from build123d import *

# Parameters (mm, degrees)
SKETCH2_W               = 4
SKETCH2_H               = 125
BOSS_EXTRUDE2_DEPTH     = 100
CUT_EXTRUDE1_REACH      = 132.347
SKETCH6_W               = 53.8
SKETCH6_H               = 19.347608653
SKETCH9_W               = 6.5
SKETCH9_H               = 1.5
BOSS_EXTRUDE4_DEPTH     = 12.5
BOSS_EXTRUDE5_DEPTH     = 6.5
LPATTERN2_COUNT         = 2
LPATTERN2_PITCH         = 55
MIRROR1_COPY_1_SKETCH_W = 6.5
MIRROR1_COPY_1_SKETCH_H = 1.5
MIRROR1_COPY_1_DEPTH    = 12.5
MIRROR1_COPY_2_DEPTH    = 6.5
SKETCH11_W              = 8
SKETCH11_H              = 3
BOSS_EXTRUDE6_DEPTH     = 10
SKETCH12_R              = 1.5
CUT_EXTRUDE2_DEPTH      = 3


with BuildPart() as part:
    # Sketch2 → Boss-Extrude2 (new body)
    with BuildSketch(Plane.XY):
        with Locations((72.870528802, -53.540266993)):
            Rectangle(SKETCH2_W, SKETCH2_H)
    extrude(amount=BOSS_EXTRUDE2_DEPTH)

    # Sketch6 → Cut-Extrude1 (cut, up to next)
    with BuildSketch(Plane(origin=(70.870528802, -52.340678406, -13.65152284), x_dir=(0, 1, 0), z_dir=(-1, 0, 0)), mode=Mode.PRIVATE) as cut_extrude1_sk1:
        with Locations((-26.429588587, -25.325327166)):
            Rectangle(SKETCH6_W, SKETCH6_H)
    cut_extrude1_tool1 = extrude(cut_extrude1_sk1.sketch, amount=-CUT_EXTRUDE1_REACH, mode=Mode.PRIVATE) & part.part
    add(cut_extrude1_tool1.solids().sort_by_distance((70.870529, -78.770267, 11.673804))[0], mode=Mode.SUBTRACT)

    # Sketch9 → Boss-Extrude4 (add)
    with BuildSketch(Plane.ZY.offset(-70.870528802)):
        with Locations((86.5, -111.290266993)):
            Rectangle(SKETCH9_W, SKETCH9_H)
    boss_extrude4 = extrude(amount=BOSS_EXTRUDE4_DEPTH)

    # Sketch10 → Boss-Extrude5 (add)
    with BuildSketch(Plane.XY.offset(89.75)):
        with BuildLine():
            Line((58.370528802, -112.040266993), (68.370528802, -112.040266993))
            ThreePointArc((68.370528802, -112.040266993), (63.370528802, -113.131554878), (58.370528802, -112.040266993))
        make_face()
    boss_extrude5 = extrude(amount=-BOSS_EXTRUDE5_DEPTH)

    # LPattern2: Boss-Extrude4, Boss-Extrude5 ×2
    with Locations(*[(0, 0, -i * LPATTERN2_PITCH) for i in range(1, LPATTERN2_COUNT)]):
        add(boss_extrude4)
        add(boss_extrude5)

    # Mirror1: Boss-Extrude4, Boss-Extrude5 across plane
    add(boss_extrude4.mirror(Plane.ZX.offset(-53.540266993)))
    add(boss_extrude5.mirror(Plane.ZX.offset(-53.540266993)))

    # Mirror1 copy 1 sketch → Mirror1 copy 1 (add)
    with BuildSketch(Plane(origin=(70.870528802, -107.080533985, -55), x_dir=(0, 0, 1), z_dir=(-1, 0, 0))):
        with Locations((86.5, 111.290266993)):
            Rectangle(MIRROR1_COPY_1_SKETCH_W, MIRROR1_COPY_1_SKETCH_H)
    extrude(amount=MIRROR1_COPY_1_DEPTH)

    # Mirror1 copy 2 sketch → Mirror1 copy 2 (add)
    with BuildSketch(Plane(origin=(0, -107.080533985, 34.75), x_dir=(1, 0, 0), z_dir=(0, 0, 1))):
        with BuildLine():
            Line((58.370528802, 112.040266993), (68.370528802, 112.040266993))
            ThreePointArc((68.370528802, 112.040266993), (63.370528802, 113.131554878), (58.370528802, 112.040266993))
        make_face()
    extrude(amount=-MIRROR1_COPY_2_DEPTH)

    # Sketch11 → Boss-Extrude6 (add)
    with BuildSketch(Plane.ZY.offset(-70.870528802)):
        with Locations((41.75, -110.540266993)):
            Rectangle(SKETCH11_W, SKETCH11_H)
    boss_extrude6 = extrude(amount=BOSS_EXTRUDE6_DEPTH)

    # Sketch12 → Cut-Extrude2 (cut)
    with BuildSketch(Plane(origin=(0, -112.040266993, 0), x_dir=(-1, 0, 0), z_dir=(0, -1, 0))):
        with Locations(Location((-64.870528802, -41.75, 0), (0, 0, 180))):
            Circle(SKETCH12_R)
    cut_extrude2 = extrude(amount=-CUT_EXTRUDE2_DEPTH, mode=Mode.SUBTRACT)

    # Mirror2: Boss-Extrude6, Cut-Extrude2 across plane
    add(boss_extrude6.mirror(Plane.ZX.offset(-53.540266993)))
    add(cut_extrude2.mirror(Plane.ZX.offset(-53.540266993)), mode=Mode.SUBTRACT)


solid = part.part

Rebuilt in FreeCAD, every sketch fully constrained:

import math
import FreeCAD as App
import Part
import Sketcher
from FreeCAD import Vector

doc = App.newDocument("Part")
body = doc.addObject("PartDesign::Body", "Body")

sketch1 = body.newObject("Sketcher::SketchObject", "Sketch")
sketch1.AttachmentSupport = (doc.getObject("XY_Plane"), [""])
sketch1.MapMode = "FlatFace"
sketch1.addGeometry([
    Part.LineSegment(Vector(70.9, 9, 0), Vector(70.9, -116, 0)),
    Part.LineSegment(Vector(70.9, -116, 0), Vector(74.9, -116, 0)),
    Part.LineSegment(Vector(74.9, -116, 0), Vector(74.9, 9, 0)),
    Part.LineSegment(Vector(74.9, 9, 0), Vector(70.9, 9, 0)),
], False)
sketch1.addConstraint([
    Sketcher.Constraint("Coincident", 0, 2, 1, 1),
    Sketcher.Constraint("Coincident", 1, 2, 2, 1),
    Sketcher.Constraint("Coincident", 2, 2, 3, 1),
    Sketcher.Constraint("Coincident", 3, 2, 0, 1),
    Sketcher.Constraint("Vertical", 0),
    Sketcher.Constraint("Horizontal", 1),
    Sketcher.Constraint("Vertical", 2),
    Sketcher.Constraint("Horizontal", 3),
    Sketcher.Constraint("DistanceX", 1, 1, 1, 2, 4.0),
    Sketcher.Constraint("DistanceY", 0, 2, 0, 1, 125.0),
    Sketcher.Constraint("DistanceX", -1, 1, 0, 2, 70.870529),
    Sketcher.Constraint("DistanceY", 0, 2, -1, 1, 116.040267),
])
pad1 = body.newObject("PartDesign::Pad", "Pad")
pad1.Profile = sketch1
pad1.Length = 100

sketch2 = body.newObject("Sketcher::SketchObject", "Sketch001")
sketch2.AttachmentSupport = (doc.getObject("YZ_Plane"), [""])
sketch2.MapMode = "FlatFace"
sketch2.AttachmentOffset = App.Placement(Vector(0, 0, 70.870529), App.Rotation())
sketch2.addGeometry([
    Part.LineSegment(Vector(-106, 2, 0), Vector(-106, 21, 0)),
    Part.LineSegment(Vector(-106, 21, 0), Vector(-52, 21, 0)),
    Part.LineSegment(Vector(-52, 21, 0), Vector(-52, 2, 0)),
    Part.LineSegment(Vector(-52, 2, 0), Vector(-106, 2, 0)),
], False)
sketch2.addConstraint([
    Sketcher.Constraint("Coincident", 0, 2, 1, 1),
    Sketcher.Constraint("Coincident", 1, 2, 2, 1),
    Sketcher.Constraint("Coincident", 2, 2, 3, 1),
    Sketcher.Constraint("Coincident", 3, 2, 0, 1),
    Sketcher.Constraint("Vertical", 0),
    Sketcher.Constraint("Horizontal", 1),
    Sketcher.Constraint("Vertical", 2),
    Sketcher.Constraint("Horizontal", 3),
    Sketcher.Constraint("DistanceX", 1, 1, 1, 2, 53.8),
    Sketcher.Constraint("DistanceY", -1, 1, 2, 2, 2.0),
    Sketcher.Constraint("DistanceY", 0, 1, 0, 2, 19.347609),
    Sketcher.Constraint("DistanceX", 0, 2, -1, 1, 105.670267),
])
pocket1 = body.newObject("PartDesign::Pocket", "Pocket")
pocket1.Profile = sketch2
pocket1.Type = "UpToFirst"
pocket1.Reversed = True

sketch3 = body.newObject("Sketcher::SketchObject", "Sketch002")
sketch3.AttachmentSupport = (doc.getObject("YZ_Plane"), [""])
sketch3.MapMode = "FlatFace"
sketch3.AttachmentOffset = App.Placement(Vector(0, 0, 70.870529), App.Rotation())
sketch3.addGeometry([
    Part.LineSegment(Vector(-110.5, 83.2, 0), Vector(-112, 83.2, 0)),
    Part.LineSegment(Vector(-112, 83.2, 0), Vector(-112, 89.8, 0)),
    Part.LineSegment(Vector(-112, 89.8, 0), Vector(-110.5, 89.8, 0)),
    Part.LineSegment(Vector(-110.5, 89.8, 0), Vector(-110.5, 83.2, 0)),
], False)
sketch3.addConstraint([
    Sketcher.Constraint("Coincident", 0, 2, 1, 1),
    Sketcher.Constraint("Coincident", 1, 2, 2, 1),
    Sketcher.Constraint("Coincident", 2, 2, 3, 1),
    Sketcher.Constraint("Coincident", 3, 2, 0, 1),
    Sketcher.Constraint("Horizontal", 0),
    Sketcher.Constraint("Vertical", 1),
    Sketcher.Constraint("Horizontal", 2),
    Sketcher.Constraint("Vertical", 3),
    Sketcher.Constraint("DistanceX", 0, 2, 0, 1, 1.5),
    Sketcher.Constraint("DistanceY", 1, 1, 1, 2, 6.5),
    Sketcher.Constraint("DistanceY", -1, 1, 0, 2, 83.25),
    Sketcher.Constraint("DistanceX", 0, 2, -1, 1, 112.040267),
])
pad2 = body.newObject("PartDesign::Pad", "Pad001")
pad2.Profile = sketch3
pad2.Length = 12.5
pad2.Reversed = True

sketch4 = body.newObject("Sketcher::SketchObject", "Sketch003")
sketch4.AttachmentSupport = (doc.getObject("XY_Plane"), [""])
sketch4.MapMode = "FlatFace"
sketch4.AttachmentOffset = App.Placement(Vector(0, 0, 89.75), App.Rotation())
sketch4.addGeometry([
    Part.LineSegment(Vector(68, -112, 0), Vector(58, -112, 0)),
    Part.ArcOfCircle(Part.Circle(Vector(63, -101, 0), Vector(0, 0, 1), 12), math.radians(-115), math.radians(-65)),
], False)
sketch4.addConstraint([
    Sketcher.Constraint("Coincident", 0, 1, 1, 2),
    Sketcher.Constraint("Coincident", 1, 1, 0, 2),
    Sketcher.Constraint("Horizontal", 0),
    Sketcher.Constraint("Radius", 1, 12.0),
    Sketcher.Constraint("DistanceX", 0, 2, 0, 1, 10.0),
    Sketcher.Constraint("DistanceX", -1, 1, 1, 3, 63.370529),
    Sketcher.Constraint("DistanceY", 1, 3, -1, 1, 101.131555),
])
pad3 = body.newObject("PartDesign::Pad", "Pad002")
pad3.Profile = sketch4
pad3.Length = 6.5
pad3.Reversed = True
doc.recompute()

linearpattern = body.newObject("PartDesign::LinearPattern", "LinearPattern")
linearpattern.Originals = [pad2, pad3]
linearpattern.Direction = (doc.getObject("Z_Axis"), [""])
linearpattern.Mode = "offset"
linearpattern.Offset = 55
linearpattern.Occurrences = 2
linearpattern.Reversed = True
body.Tip = linearpattern
doc.recompute()

datumplane = body.newObject("PartDesign::Plane", "DatumPlane")
datumplane.AttachmentSupport = (doc.getObject("XZ_Plane"), [""])
datumplane.MapMode = "FlatFace"
datumplane.AttachmentOffset = App.Placement(Vector(0, 0, 53.540267), App.Rotation())
mirrored = body.newObject("PartDesign::Mirrored", "Mirrored")
mirrored.Originals = [pad2, pad3]
mirrored.MirrorPlane = (datumplane, [""])
body.Tip = mirrored

sketch5 = body.newObject("Sketcher::SketchObject", "Sketch004")
sketch5.AttachmentSupport = (doc.getObject("YZ_Plane"), [""])
sketch5.MapMode = "FlatFace"
sketch5.AttachmentOffset = App.Placement(Vector(0, 0, 70.870529), App.Rotation())
sketch5.addGeometry([
    Part.LineSegment(Vector(5, 28.2, 0), Vector(3.5, 28.2, 0)),
    Part.LineSegment(Vector(3.5, 28.2, 0), Vector(3.5, 34.8, 0)),
    Part.LineSegment(Vector(3.5, 34.8, 0), Vector(5, 34.8, 0)),
    Part.LineSegment(Vector(5, 34.8, 0), Vector(5, 28.2, 0)),
], False)
sketch5.addConstraint([
    Sketcher.Constraint("Coincident", 0, 2, 1, 1),
    Sketcher.Constraint("Coincident", 1, 2, 2, 1),
    Sketcher.Constraint("Coincident", 2, 2, 3, 1),
    Sketcher.Constraint("Coincident", 3, 2, 0, 1),
    Sketcher.Constraint("Horizontal", 0),
    Sketcher.Constraint("Vertical", 1),
    Sketcher.Constraint("Horizontal", 2),
    Sketcher.Constraint("Vertical", 3),
    Sketcher.Constraint("DistanceX", 0, 2, 0, 1, 1.5),
    Sketcher.Constraint("DistanceY", 1, 1, 1, 2, 6.5),
    Sketcher.Constraint("DistanceY", -1, 1, 0, 2, 28.25),
    Sketcher.Constraint("DistanceX", -1, 1, 0, 2, 3.459733),
])
pad4 = body.newObject("PartDesign::Pad", "Pad003")
pad4.Profile = sketch5
pad4.Length = 12.5
pad4.Reversed = True

sketch6 = body.newObject("Sketcher::SketchObject", "Sketch005")
sketch6.AttachmentSupport = (doc.getObject("XY_Plane"), [""])
sketch6.MapMode = "FlatFace"
sketch6.AttachmentOffset = App.Placement(Vector(0, 0, 34.75), App.Rotation())
sketch6.addGeometry([
    Part.LineSegment(Vector(58, 5, 0), Vector(68, 5, 0)),
    Part.ArcOfCircle(Part.Circle(Vector(63, -6, 0), Vector(0, 0, 1), 12), math.radians(65), math.radians(115)),
], False)
sketch6.addConstraint([
    Sketcher.Constraint("Coincident", 0, 1, 1, 2),
    Sketcher.Constraint("Coincident", 1, 1, 0, 2),
    Sketcher.Constraint("Horizontal", 0),
    Sketcher.Constraint("Radius", 1, 12.0),
    Sketcher.Constraint("DistanceX", 0, 1, 0, 2, 10.0),
    Sketcher.Constraint("DistanceX", -1, 1, 1, 3, 63.370529),
    Sketcher.Constraint("DistanceY", 1, 3, -1, 1, 5.948979),
])
pad5 = body.newObject("PartDesign::Pad", "Pad004")
pad5.Profile = sketch6
pad5.Length = 6.5
pad5.Reversed = True

sketch7 = body.newObject("Sketcher::SketchObject", "Sketch006")
sketch7.AttachmentSupport = (doc.getObject("YZ_Plane"), [""])
sketch7.MapMode = "FlatFace"
sketch7.AttachmentOffset = App.Placement(Vector(0, 0, 70.870529), App.Rotation())
sketch7.addGeometry([
    Part.LineSegment(Vector(-109, 37.8, 0), Vector(-112, 37.8, 0)),
    Part.LineSegment(Vector(-112, 37.8, 0), Vector(-112, 45.8, 0)),
    Part.LineSegment(Vector(-112, 45.8, 0), Vector(-109, 45.8, 0)),
    Part.LineSegment(Vector(-109, 45.8, 0), Vector(-109, 37.8, 0)),
], False)
sketch7.addConstraint([
    Sketcher.Constraint("Coincident", 0, 2, 1, 1),
    Sketcher.Constraint("Coincident", 1, 2, 2, 1),
    Sketcher.Constraint("Coincident", 2, 2, 3, 1),
    Sketcher.Constraint("Coincident", 3, 2, 0, 1),
    Sketcher.Constraint("Horizontal", 0),
    Sketcher.Constraint("Vertical", 1),
    Sketcher.Constraint("Horizontal", 2),
    Sketcher.Constraint("Vertical", 3),
    Sketcher.Constraint("DistanceX", 0, 2, 0, 1, 3.0),
    Sketcher.Constraint("DistanceY", 1, 1, 1, 2, 8.0),
    Sketcher.Constraint("DistanceY", -1, 1, 0, 2, 37.75),
    Sketcher.Constraint("DistanceX", 0, 2, -1, 1, 112.040267),
])
pad6 = body.newObject("PartDesign::Pad", "Pad005")
pad6.Profile = sketch7
pad6.Length = 10
pad6.Reversed = True

sketch8 = body.newObject("Sketcher::SketchObject", "Sketch007")
sketch8.AttachmentSupport = (doc.getObject("XZ_Plane"), [""])
sketch8.MapMode = "FlatFace"
sketch8.AttachmentOffset = App.Placement(Vector(0, 0, 112.040267), App.Rotation())
sketch8.addGeometry(Part.Circle(Vector(64.9, 41.8, 0), Vector(0, 0, 1), 1.5), False)
sketch8.addConstraint([
    Sketcher.Constraint("Diameter", 0, 3.0),
    Sketcher.Constraint("DistanceY", -1, 1, 0, 3, 41.75),
    Sketcher.Constraint("DistanceX", -1, 1, 0, 3, 64.870529),
])
pocket2 = body.newObject("PartDesign::Pocket", "Pocket001")
pocket2.Profile = sketch8
pocket2.Length = 3
doc.recompute()

datumplane2 = body.newObject("PartDesign::Plane", "DatumPlane001")
datumplane2.AttachmentSupport = (doc.getObject("XZ_Plane"), [""])
datumplane2.MapMode = "FlatFace"
datumplane2.AttachmentOffset = App.Placement(Vector(0, 0, 53.540267), App.Rotation())
mirrored2 = body.newObject("PartDesign::Mirrored", "Mirrored001")
mirrored2.Originals = [pad6, pocket2]
mirrored2.MirrorPlane = (datumplane2, [""])
body.Tip = mirrored2

doc.recompute()
